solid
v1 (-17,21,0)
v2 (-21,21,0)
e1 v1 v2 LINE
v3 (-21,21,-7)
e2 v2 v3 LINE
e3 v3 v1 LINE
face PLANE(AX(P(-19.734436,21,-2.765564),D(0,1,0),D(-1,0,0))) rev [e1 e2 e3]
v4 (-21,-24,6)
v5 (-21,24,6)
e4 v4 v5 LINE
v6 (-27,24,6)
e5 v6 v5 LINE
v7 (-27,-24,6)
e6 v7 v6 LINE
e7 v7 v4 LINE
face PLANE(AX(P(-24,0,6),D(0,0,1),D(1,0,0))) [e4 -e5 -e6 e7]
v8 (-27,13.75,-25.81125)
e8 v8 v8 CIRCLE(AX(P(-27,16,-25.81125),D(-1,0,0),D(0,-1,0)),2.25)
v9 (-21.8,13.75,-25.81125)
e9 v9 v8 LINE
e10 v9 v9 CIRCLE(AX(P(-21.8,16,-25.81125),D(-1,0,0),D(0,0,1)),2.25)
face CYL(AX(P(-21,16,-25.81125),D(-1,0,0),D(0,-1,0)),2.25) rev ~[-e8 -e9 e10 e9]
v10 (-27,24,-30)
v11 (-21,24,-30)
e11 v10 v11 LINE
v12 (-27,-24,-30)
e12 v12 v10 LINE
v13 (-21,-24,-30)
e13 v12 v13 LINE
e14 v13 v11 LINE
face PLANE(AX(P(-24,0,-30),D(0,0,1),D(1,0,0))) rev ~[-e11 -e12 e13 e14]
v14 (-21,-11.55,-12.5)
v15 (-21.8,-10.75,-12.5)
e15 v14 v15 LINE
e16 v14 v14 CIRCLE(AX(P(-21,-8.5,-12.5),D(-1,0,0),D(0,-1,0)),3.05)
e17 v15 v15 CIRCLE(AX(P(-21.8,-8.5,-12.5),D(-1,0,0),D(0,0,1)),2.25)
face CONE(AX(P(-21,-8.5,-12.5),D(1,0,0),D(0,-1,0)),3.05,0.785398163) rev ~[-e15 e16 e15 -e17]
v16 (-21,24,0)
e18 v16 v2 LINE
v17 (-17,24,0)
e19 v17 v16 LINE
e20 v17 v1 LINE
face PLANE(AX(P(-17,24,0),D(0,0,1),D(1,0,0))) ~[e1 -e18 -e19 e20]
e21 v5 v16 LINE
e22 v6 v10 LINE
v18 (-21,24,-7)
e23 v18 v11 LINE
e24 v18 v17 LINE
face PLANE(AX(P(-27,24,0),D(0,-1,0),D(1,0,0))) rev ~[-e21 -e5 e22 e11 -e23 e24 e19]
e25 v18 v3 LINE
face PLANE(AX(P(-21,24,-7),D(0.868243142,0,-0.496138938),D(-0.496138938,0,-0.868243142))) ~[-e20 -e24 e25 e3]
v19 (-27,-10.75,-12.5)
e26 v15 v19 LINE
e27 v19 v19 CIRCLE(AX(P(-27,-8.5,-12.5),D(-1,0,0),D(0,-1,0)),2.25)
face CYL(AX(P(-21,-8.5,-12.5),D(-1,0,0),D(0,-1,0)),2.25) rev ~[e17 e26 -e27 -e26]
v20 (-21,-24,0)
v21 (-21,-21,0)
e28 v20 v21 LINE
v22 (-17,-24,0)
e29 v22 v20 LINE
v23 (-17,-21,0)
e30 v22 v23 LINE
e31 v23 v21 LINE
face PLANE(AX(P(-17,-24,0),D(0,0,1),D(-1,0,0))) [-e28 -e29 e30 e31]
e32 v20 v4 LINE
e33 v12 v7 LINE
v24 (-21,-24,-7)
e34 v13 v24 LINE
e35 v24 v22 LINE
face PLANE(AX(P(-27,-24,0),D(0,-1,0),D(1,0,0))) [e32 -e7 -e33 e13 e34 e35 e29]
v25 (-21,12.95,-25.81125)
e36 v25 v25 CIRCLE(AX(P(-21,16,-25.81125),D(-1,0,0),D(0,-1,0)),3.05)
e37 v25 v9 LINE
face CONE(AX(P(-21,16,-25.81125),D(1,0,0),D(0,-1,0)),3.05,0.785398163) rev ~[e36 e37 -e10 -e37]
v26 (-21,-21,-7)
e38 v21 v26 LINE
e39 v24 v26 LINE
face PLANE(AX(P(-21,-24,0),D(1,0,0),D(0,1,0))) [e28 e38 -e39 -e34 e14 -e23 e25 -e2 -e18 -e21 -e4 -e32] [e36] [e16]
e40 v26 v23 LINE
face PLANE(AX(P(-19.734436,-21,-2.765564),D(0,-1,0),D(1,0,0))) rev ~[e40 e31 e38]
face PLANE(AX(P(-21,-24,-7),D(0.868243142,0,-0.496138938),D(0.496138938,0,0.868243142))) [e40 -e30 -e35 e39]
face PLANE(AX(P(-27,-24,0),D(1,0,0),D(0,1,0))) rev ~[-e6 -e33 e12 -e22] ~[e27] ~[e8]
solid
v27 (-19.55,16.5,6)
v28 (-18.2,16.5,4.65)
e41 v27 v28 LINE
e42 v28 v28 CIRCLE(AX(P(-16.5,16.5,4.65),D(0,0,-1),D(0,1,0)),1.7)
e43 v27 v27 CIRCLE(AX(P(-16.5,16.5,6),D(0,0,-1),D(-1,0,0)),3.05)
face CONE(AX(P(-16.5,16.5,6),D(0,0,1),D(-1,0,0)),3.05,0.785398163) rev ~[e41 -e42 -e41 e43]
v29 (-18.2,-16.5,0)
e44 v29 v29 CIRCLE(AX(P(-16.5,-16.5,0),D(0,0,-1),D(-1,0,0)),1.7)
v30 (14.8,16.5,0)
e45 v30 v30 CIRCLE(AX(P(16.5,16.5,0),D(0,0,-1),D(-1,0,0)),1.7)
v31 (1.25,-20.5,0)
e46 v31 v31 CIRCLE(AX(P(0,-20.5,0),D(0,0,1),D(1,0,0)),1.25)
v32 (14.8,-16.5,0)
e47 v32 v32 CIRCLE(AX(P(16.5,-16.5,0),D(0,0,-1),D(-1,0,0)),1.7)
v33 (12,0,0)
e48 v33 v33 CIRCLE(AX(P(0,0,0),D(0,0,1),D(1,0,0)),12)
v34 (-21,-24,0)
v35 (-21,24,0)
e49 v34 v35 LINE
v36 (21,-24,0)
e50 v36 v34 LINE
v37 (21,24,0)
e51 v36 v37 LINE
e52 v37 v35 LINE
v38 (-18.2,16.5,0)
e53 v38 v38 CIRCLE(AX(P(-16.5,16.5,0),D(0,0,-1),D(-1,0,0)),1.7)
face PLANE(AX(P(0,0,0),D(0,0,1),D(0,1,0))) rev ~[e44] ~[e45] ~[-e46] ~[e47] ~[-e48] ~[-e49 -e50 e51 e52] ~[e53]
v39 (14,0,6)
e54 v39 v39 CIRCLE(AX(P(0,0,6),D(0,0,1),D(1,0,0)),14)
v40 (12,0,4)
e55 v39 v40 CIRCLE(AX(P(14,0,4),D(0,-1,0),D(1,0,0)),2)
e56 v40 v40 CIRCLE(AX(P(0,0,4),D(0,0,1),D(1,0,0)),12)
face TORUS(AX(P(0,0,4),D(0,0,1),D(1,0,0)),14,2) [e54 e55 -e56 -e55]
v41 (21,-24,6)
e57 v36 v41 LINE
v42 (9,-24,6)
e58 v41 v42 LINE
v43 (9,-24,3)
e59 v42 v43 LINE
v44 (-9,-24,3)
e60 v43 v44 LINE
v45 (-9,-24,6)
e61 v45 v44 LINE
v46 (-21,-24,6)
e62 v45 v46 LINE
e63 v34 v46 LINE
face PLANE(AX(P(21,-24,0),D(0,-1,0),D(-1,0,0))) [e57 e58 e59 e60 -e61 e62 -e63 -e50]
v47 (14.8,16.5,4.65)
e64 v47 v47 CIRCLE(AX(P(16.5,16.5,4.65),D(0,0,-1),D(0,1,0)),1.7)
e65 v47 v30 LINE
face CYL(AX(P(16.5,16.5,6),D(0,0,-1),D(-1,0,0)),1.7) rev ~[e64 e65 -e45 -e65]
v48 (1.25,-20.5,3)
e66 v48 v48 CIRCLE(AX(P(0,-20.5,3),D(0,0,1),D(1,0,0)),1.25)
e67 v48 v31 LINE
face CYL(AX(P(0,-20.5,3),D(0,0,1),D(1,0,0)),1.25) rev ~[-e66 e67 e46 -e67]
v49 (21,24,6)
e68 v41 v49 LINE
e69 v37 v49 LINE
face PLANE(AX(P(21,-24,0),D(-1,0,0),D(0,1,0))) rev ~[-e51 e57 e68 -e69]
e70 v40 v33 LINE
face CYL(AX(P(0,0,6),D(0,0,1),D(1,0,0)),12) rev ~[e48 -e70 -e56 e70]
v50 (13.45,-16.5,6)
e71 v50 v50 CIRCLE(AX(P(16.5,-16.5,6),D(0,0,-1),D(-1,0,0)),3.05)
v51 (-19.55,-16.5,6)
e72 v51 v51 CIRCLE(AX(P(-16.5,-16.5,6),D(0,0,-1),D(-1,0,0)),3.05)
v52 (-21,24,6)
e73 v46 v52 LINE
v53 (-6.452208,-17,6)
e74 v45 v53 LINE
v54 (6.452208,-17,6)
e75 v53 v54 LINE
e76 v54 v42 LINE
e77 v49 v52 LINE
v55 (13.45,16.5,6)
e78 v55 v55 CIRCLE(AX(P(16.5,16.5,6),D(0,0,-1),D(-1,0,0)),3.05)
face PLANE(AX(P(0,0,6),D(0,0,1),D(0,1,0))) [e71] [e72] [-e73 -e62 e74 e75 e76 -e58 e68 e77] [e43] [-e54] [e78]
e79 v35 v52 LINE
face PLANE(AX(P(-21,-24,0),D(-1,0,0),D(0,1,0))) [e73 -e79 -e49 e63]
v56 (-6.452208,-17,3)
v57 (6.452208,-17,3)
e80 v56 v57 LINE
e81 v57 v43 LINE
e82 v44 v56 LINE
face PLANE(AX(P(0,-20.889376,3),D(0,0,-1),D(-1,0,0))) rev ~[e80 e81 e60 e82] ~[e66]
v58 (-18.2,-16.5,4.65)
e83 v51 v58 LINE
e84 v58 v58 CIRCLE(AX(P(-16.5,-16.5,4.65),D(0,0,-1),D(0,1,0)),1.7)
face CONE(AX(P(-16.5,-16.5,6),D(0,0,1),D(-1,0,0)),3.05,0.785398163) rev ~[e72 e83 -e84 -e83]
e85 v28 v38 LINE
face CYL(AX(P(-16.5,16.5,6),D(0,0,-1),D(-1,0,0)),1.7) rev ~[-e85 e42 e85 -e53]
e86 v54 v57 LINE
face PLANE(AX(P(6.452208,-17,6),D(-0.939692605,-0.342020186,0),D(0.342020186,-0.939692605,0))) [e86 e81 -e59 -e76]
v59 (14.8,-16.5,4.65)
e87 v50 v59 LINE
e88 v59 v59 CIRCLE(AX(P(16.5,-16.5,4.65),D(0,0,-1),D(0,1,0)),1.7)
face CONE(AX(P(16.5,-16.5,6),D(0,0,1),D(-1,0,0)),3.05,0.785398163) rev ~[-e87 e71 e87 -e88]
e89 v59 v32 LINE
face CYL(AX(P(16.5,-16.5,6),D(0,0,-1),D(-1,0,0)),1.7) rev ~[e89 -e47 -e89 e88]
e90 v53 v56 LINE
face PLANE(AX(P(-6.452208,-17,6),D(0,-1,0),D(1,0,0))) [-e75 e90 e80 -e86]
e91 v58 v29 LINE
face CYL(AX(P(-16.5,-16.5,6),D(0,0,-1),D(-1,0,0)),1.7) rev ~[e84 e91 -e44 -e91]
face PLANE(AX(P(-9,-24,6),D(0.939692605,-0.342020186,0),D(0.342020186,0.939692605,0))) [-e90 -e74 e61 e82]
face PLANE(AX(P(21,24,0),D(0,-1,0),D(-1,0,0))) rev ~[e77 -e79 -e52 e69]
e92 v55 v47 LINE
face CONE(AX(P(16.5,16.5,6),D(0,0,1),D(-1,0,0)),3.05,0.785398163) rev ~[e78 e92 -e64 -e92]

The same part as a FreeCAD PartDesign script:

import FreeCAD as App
import Part
import Sketcher

V = App.Vector
Q = App.Units.Quantity


def edges_at(feature, points):
    """Names of the edges that pass closest to the given points."""
    edges = feature.Shape.Edges
    near = lambda p: min(range(len(edges)), key=lambda i: edges[i].distToShape(Part.Vertex(*p))[0])
    return sorted({f"Edge{near(p) + 1}" for p in points})


def add_polygon(sketch, points):
    """Adds a closed chain of lines whose ends are joined by coincident constraints."""
    first, n = sketch.GeometryCount, len(points)
    for a, b in zip(points, points[1:] + points[:1]):
        sketch.addGeometry(Part.LineSegment(App.Vector(*a, 0), App.Vector(*b, 0)), False)
    for i in range(n):
        sketch.addConstraint(Sketcher.Constraint("Coincident", first + i, 2, first + (i + 1) % n, 1))

doc = App.newDocument("Part")
body = doc.addObject("PartDesign::Body", "Body")

sketch1 = body.newObject("Sketcher::SketchObject", "Sketch")
sketch1.AttachmentSupport = (doc.getObject("XY_Plane"), [""])
sketch1.MapMode = "FlatFace"
add_polygon(sketch1, [(-21, -24), (21, -24), (21, 24), (-21, 24)])
sketch1.addConstraint([
    Sketcher.Constraint("Horizontal", 0),
    Sketcher.Constraint("Vertical", 1),
    Sketcher.Constraint("Horizontal", 2),
    Sketcher.Constraint("Vertical", 3),
    Sketcher.Constraint("Symmetric", 0, 2, 2, 2, -1, 1),
    Sketcher.Constraint("DistanceX", 0, 1, 0, 2, 42.0),
    Sketcher.Constraint("DistanceY", 1, 1, 1, 2, 48.0),
])
pad1 = body.newObject("PartDesign::Pad", "Pad")
pad1.Profile = sketch1
pad1.Length = 6

sketch2 = body.newObject("Sketcher::SketchObject", "Sketch001")
sketch2.AttachmentSupport = (doc.getObject("XY_Plane"), [""])
sketch2.MapMode = "FlatFace"
sketch2.AttachmentOffset = App.Placement(V(0, 0, 6), App.Rotation())
sketch2.addGeometry([
    Part.Circle(V(-16.5, 16.5, 0), V(0, 0, 1), 1.7),
    Part.Circle(V(-16.5, -16.5, 0), V(0, 0, 1), 1.7),
    Part.Circle(V(16.5, -16.5, 0), V(0, 0, 1), 1.7),
    Part.Circle(V(16.5, 16.5, 0), V(0, 0, 1), 1.7),
], False)
sketch2.addConstraint([
    Sketcher.Constraint("Equal", 0, 1),
    Sketcher.Constraint("Equal", 1, 2),
    Sketcher.Constraint("Equal", 2, 3),
    Sketcher.Constraint("Symmetric", 0, 3, 2, 3, -1, 1),
    Sketcher.Constraint("Symmetric", 1, 3, 3, 3, -1, 1),
    Sketcher.Constraint("Symmetric", 1, 3, 2, 3, -2),
    Sketcher.Constraint("Diameter", 0, 3.4),
    Sketcher.Constraint("DistanceY", 1, 3, 0, 3, 33.0),
    Sketcher.Constraint("DistanceX", 1, 3, 2, 3, 33.0),
])
doc.recompute()
hole = body.newObject("PartDesign::Hole", "Hole")
hole.Profile = sketch2
hole.ThreadType = "None"
hole.Diameter = 3.4
hole.DepthType = "ThroughAll"
hole.HoleCutType = "Countersink"
hole.HoleCutDiameter = 6.1
hole.HoleCutCountersinkAngle = 90

sketch3 = body.newObject("Sketcher::SketchObject", "Sketch002")
sketch3.AttachmentSupport = (doc.getObject("XY_Plane"), [""])
sketch3.MapMode = "FlatFace"
sketch3.AttachmentOffset = App.Placement(V(0, 0, 6), App.Rotation())
sketch3.addGeometry(Part.Circle(V(0, 0, 0), V(0, 0, 1), 12), False)
sketch3.addConstraint([
    Sketcher.Constraint("Coincident", 0, 3, -1, 1),
    Sketcher.Constraint("Diameter", 0, 24.0),
])
pocket1 = body.newObject("PartDesign::Pocket", "Pocket")
pocket1.Profile = sketch3
pocket1.Type = "ThroughAll"
doc.recompute()

fillet = body.newObject("PartDesign::Fillet", "Fillet")
fillet.Base = (pocket1, edges_at(pocket1, [(-12, 0, 6)]))
fillet.Radius = 2

sketch4 = body.newObject("Sketcher::SketchObject", "Sketch003")
sketch4.AttachmentSupport = (doc.getObject("XY_Plane"), [""])
sketch4.MapMode = "FlatFace"
sketch4.AttachmentOffset = App.Placement(V(0, 0, 6), App.Rotation())
add_polygon(sketch4, [(-6, -17), (-9, -24), (9, -24), (6, -17)])
sketch4.addConstraint([
    Sketcher.Constraint("Horizontal", 1),
    Sketcher.Constraint("Horizontal", 3),
    Sketcher.Constraint("Equal", 0, 2),
    Sketcher.Constraint("DistanceX", 1, 1, 1, 2, 18.0),
    Sketcher.Constraint("Angle", 0, Q("-110.000003 deg")),
    Sketcher.Constraint("DistanceX", 0, 2, -1, 1, 9.0),
    Sketcher.Constraint("DistanceY", 0, 2, -1, 1, 24.0),
    Sketcher.Constraint("DistanceY", 2, 2, -1, 1, 17.0),
])
pocket2 = body.newObject("PartDesign::Pocket", "Pocket001")
pocket2.Profile = sketch4
pocket2.Length = 3

sketch5 = body.newObject("Sketcher::SketchObject", "Sketch004")
sketch5.AttachmentSupport = (doc.getObject("XY_Plane"), [""])
sketch5.MapMode = "FlatFace"
sketch5.AttachmentOffset = App.Placement(V(0, 0, 3), App.Rotation())
sketch5.addGeometry(Part.Circle(V(0, -20.5, 0), V(0, 0, 1), 1.2), False)
sketch5.addConstraint([
    Sketcher.Constraint("PointOnObject", 0, 3, -2),
    Sketcher.Constraint("Diameter", 0, 2.5),
    Sketcher.Constraint("DistanceY", 0, 3, -1, 1, 20.5),
])
pocket3 = body.newObject("PartDesign::Pocket", "Pocket002")
pocket3.Profile = sketch5
pocket3.Type = "ThroughAll"
body2 = doc.addObject("PartDesign::Body", "Body001")

sketch6 = body2.newObject("Sketcher::SketchObject", "Sketch005")
sketch6.AttachmentSupport = (doc.getObject("XY_Plane001"), [""])
sketch6.MapMode = "FlatFace"
add_polygon(sketch6, [(-27, 24), (-27, -24), (-21, -24), (-21, 24)])
sketch6.addConstraint([
    Sketcher.Constraint("Vertical", 0),
    Sketcher.Constraint("Horizontal", 1),
    Sketcher.Constraint("Vertical", 2),
    Sketcher.Constraint("Horizontal", 3),
    Sketcher.Constraint("DistanceX", 1, 1, 1, 2, 6.0),
    Sketcher.Constraint("DistanceY", 0, 2, 0, 1, 48.0),
    Sketcher.Constraint("DistanceX", 0, 2, -1, 1, 27.0),
    Sketcher.Constraint("DistanceY", 0, 2, -1, 1, 24.0),
])
pad2 = body2.newObject("PartDesign::Pad", "Pad001")
pad2.Profile = sketch6
pad2.Type = "TwoLengths"
pad2.Length = 6
pad2.Length2 = 30

sketch7 = body2.newObject("Sketcher::SketchObject", "Sketch006")
sketch7.AttachmentSupport = (doc.getObject("XZ_Plane001"), [""])
sketch7.MapMode = "FlatFace"
sketch7.AttachmentOffset = App.Placement(V(0, 0, 24), App.Rotation())
add_polygon(sketch7, [(-21, 0), (-21, -7), (-17, 0)])
sketch7.addConstraint([
    Sketcher.Constraint("Vertical", 0),
    Sketcher.Constraint("Horizontal", 2),
    Sketcher.Constraint("PointOnObject", 1, 2, -1),
    Sketcher.Constraint("DistanceX", 2, 2, 2, 1, 4.0),
    Sketcher.Constraint("DistanceY", 0, 2, 0, 1, 7.0),
    Sketcher.Constraint("DistanceX", 0, 2, -1, 1, 21.0),
])
pad3 = body2.newObject("PartDesign::Pad", "Pad002")
pad3.Profile = sketch7
pad3.Length = 3
pad3.Reversed = True
doc.recompute()

mirrored = body2.newObject("PartDesign::Mirrored", "Mirrored")
mirrored.Originals = [pad3]
mirrored.MirrorPlane = (doc.getObject("XZ_Plane001"), [""])
body2.Tip = mirrored

sketch8 = body2.newObject("Sketcher::SketchObject", "Sketch007")
sketch8.AttachmentSupport = (doc.getObject("YZ_Plane001"), [""])
sketch8.MapMode = "FlatFace"
sketch8.AttachmentOffset = App.Placement(V(0, 0, -21), App.Rotation())
sketch8.addGeometry([
    Part.Circle(V(-8.5, -12.5, 0), V(0, 0, 1), 2.2),
    Part.Circle(V(16, -25.8, 0), V(0, 0, 1), 2.2),
], False)
sketch8.addConstraint([
    Sketcher.Constraint("Equal", 0, 1),
    Sketcher.Constraint("Diameter", 0, 4.5),
    Sketcher.Constraint("DistanceX", -1, 1, 1, 3, 16.0),
    Sketcher.Constraint("DistanceX", 0, 3, -1, 1, 8.5),
    Sketcher.Constraint("DistanceY", 0, 3, -1, 1, 12.5),
    Sketcher.Constraint("DistanceY", 1, 3, -1, 1, 25.81125),
])
doc.recompute()
hole2 = body2.newObject("PartDesign::Hole", "Hole001")
hole2.Profile = sketch8
hole2.ThreadType = "None"
hole2.Diameter = 4.5
hole2.DepthType = "Dimension"
hole2.Depth = 25
hole2.DrillPoint = "Flat"
hole2.HoleCutType = "Countersink"
hole2.HoleCutDiameter = 6.1
hole2.HoleCutCountersinkAngle = 90

doc.recompute()
